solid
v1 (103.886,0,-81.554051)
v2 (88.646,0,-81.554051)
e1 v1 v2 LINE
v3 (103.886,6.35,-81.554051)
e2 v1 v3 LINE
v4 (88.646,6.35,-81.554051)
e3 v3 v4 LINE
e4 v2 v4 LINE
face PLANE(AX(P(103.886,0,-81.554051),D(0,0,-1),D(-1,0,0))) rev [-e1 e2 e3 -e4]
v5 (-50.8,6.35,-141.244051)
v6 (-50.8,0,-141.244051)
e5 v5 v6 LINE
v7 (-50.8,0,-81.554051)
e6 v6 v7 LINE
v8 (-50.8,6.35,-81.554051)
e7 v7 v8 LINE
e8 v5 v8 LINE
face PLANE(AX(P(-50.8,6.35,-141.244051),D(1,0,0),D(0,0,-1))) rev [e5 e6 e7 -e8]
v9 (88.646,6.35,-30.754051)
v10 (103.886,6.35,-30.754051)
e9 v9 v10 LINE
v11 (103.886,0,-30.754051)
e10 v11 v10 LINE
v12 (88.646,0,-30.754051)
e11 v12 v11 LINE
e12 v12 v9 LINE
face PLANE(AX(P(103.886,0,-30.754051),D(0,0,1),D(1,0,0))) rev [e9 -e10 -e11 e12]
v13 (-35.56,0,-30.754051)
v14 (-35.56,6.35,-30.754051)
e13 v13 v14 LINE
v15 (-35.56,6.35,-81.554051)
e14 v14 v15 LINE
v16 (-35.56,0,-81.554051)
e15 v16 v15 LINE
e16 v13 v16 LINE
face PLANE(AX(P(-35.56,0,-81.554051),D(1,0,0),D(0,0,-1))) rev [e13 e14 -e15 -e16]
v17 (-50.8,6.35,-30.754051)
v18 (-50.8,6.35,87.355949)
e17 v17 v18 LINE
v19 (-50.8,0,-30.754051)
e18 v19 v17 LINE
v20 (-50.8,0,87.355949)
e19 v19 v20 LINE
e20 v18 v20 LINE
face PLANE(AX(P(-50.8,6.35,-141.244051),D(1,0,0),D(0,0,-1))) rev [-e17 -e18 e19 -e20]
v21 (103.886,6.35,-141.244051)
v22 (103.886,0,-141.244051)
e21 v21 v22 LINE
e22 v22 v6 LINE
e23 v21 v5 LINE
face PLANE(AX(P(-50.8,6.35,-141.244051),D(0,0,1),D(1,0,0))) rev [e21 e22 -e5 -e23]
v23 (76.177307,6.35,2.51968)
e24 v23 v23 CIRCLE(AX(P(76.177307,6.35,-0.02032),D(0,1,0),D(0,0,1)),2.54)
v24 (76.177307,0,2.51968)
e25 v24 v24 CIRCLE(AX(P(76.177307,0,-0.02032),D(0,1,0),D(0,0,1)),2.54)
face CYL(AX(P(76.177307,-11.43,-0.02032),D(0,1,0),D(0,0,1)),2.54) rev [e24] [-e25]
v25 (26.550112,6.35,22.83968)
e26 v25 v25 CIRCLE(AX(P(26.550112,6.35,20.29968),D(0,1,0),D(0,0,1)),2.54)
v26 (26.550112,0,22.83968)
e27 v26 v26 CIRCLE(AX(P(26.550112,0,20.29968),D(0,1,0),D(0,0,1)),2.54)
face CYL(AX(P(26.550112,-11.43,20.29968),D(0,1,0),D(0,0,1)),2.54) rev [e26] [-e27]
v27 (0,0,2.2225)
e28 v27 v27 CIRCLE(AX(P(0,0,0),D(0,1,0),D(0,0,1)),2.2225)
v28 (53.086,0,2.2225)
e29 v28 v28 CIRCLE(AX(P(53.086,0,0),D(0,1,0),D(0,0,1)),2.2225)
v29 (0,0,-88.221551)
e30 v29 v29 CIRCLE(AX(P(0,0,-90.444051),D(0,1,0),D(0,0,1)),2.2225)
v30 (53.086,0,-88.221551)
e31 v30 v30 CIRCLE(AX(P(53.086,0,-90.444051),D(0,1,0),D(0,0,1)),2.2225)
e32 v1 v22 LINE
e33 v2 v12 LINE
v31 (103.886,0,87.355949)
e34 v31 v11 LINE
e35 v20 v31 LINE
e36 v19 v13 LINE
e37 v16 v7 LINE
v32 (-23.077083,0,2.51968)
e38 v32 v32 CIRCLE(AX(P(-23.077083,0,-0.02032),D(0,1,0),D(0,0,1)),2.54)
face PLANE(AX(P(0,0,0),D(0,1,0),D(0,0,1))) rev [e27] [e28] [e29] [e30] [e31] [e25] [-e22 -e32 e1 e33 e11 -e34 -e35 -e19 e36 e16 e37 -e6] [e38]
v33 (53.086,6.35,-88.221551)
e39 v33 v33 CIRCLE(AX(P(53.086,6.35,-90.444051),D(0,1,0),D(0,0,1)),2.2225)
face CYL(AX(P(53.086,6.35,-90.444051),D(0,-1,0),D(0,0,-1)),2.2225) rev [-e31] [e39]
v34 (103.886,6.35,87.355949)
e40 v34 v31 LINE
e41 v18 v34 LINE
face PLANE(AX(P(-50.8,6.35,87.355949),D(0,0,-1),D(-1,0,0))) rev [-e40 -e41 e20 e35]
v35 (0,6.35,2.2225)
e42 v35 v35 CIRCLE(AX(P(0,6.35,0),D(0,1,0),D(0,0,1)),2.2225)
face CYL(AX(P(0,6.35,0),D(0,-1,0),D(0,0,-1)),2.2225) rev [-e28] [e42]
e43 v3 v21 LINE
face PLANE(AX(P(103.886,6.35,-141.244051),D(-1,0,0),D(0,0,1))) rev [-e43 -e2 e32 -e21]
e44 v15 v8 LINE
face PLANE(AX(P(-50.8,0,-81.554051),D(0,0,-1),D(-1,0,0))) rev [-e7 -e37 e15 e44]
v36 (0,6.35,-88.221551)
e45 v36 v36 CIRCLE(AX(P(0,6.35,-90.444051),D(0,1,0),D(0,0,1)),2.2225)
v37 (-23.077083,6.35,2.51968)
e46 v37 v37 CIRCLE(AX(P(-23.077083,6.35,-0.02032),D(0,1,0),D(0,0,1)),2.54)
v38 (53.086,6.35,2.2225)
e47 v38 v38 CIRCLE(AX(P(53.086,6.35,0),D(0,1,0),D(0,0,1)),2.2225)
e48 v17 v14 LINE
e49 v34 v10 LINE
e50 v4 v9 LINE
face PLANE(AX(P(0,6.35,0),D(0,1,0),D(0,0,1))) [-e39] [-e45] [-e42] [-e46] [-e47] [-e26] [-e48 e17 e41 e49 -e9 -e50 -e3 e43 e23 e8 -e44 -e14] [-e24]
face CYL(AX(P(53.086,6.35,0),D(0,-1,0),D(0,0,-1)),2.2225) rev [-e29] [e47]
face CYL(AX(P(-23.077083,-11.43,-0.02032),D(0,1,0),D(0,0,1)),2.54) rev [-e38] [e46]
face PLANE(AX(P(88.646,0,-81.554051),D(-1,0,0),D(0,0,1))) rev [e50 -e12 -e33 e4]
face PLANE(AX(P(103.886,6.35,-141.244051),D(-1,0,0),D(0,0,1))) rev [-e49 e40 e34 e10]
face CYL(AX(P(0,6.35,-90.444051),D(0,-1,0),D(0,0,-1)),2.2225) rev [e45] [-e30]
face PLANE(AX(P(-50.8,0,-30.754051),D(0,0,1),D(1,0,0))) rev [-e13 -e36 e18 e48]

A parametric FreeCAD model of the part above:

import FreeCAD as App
import Part
import Sketcher

V = App.Vector
Q = App.Units.Quantity

doc = App.newDocument("Part")
body = doc.addObject("PartDesign::Body", "Body")

# Sketch on XZ plane
sketch1 = doc.addObject("Sketcher::SketchObject", "Sketch")
body.addObject(sketch1)
sketch1.AttachmentSupport = (doc.XZ_Plane, [""])
sketch1.MapMode = "FlatFace"
sketch1.addGeometry([
    Part.LineSegment(V(-51, -141, 0), V(-51, 87, 0)),
    Part.LineSegment(V(-51, 87, 0), V(104, 87, 0)),
    Part.LineSegment(V(104, 87, 0), V(104, -141, 0)),
    Part.LineSegment(V(104, -141, 0), V(-51, -141, 0)),
], False)
sketch1.addConstraint([
    Sketcher.Constraint("Coincident", 0, 2, 1, 1),
    Sketcher.Constraint("Coincident", 1, 2, 2, 1),
    Sketcher.Constraint("Coincident", 2, 2, 3, 1),
    Sketcher.Constraint("Coincident", 3, 2, 0, 1),
    Sketcher.Constraint("Vertical", 0),
    Sketcher.Constraint("Horizontal", 1),
    Sketcher.Constraint("Vertical", 2),
    Sketcher.Constraint("Horizontal", 3),
    Sketcher.Constraint("DistanceY", 0, 1, 0, 2, Q("9 in")),
    Sketcher.Constraint("DistanceX", 0, 2, -1, 1, Q("2 in")),
    Sketcher.Constraint("DistanceX", 1, 1, 1, 2, Q("6.09 in")),
    Sketcher.Constraint("DistanceY", -1, 1, 0, 2, 87.355949),
])
pad1 = doc.addObject("PartDesign::Pad", "Pad")
body.addObject(pad1)
pad1.Profile = sketch1
pad1.Length = Q("0.25 in")
pad1.Reversed = True

# Sketch on XZ plane
sketch2 = doc.addObject("Sketcher::SketchObject", "Sketch001")
body.addObject(sketch2)
sketch2.AttachmentSupport = (doc.XZ_Plane, [""])
sketch2.MapMode = "FlatFace"
sketch2.addGeometry([
    Part.Circle(V(0, -90.4, 0), V(0, 0, 1), 2.2),
    Part.Circle(V(53.1, -90.4, 0), V(0, 0, 1), 2.2),
    Part.Circle(V(0, 0, 0), V(0, 0, 1), 2.2),
    Part.Circle(V(53.1, 0, 0), V(0, 0, 1), 2.2),
], False)
sketch2.addConstraint([
    Sketcher.Constraint("Coincident", 2, 3, -1, 1),
    Sketcher.Constraint("Equal", 0, 1),
    Sketcher.Constraint("Equal", 1, 2),
    Sketcher.Constraint("Equal", 2, 3),
    Sketcher.Constraint("PointOnObject", 0, 3, -2),
    Sketcher.Constraint("PointOnObject", 3, 3, -1),
    Sketcher.Constraint("Horizontal", 0, 3, 1, 3),
    Sketcher.Constraint("Vertical", 1, 3, 3, 3),
    Sketcher.Constraint("Diameter", 0, Q("0.175 in")),
    Sketcher.Constraint("DistanceX", -1, 1, 1, 3, Q("2.09 in")),
    Sketcher.Constraint("DistanceY", 0, 3, -1, 1, 90.444051),
])
pocket1 = doc.addObject("PartDesign::Pocket", "Pocket")
body.addObject(pocket1)
pocket1.Profile = sketch2
pocket1.Length = Q("0.25 in")

# Sketch on XZ plane
sketch3 = doc.addObject("Sketcher::SketchObject", "Sketch002")
body.addObject(sketch3)
sketch3.AttachmentSupport = (doc.XZ_Plane, [""])
sketch3.MapMode = "FlatFace"
sketch3.AttachmentOffset = App.Placement(V(0, 0, -0.25 * 25.4), App.Rotation())
sketch3.addGeometry([
    Part.LineSegment(V(89, -82, 0), V(89, -31, 0)),  # 0
    Part.LineSegment(V(89, -31, 0), V(104, -31, 0)),  # 1
    Part.LineSegment(V(104, -31, 0), V(104, -82, 0)),  # 2
    Part.LineSegment(V(104, -82, 0), V(89, -82, 0)),  # 3
    Part.LineSegment(V(-51, -82, 0), V(-51, -31, 0)),  # 4
    Part.LineSegment(V(-51, -31, 0), V(-36, -31, 0)),  # 5
    Part.LineSegment(V(-36, -31, 0), V(-36, -82, 0)),  # 6
    Part.LineSegment(V(-36, -82, 0), V(-51, -82, 0)),  # 7
], False)
sketch3.addConstraint([
    Sketcher.Constraint("Coincident", 0, 2, 1, 1),
    Sketcher.Constraint("Coincident", 1, 2, 2, 1),
    Sketcher.Constraint("Coincident", 2, 2, 3, 1),
    Sketcher.Constraint("Coincident", 3, 2, 0, 1),
    Sketcher.Constraint("Coincident", 4, 2, 5, 1),
    Sketcher.Constraint("Coincident", 5, 2, 6, 1),
    Sketcher.Constraint("Coincident", 6, 2, 7, 1),
    Sketcher.Constraint("Coincident", 7, 2, 4, 1),
    Sketcher.Constraint("Vertical", 0),
    Sketcher.Constraint("Horizontal", 1),
    Sketcher.Constraint("Vertical", 2),
    Sketcher.Constraint("Horizontal", 3),
    Sketcher.Constraint("Vertical", 4),
    Sketcher.Constraint("Horizontal", 5),
    Sketcher.Constraint("Vertical", 6),
    Sketcher.Constraint("Horizontal", 7),
    Sketcher.Constraint("Horizontal", 1, 2, 4, 2),
    Sketcher.Constraint("Horizontal", 3, 2, 6, 2),
    Sketcher.Constraint("Equal", 3, 5),
    Sketcher.Constraint("DistanceY", 0, 1, 0, 2, Q("2 in")),
    Sketcher.Constraint("DistanceX", 1, 1, 1, 2, Q("0.6 in")),
    Sketcher.Constraint("DistanceX", 4, 2, -1, 1, Q("2 in")),
    Sketcher.Constraint("DistanceX", -1, 1, 0, 2, Q("3.49 in")),
    Sketcher.Constraint("DistanceY", 0, 2, -1, 1, 30.754051),
])
pocket2 = doc.addObject("PartDesign::Pocket", "Pocket001")
body.addObject(pocket2)
pocket2.Profile = sketch3
pocket2.Length = Q("0.25 in")
pocket2.Reversed = True

# Sketch on XZ plane
sketch4 = doc.addObject("Sketcher::SketchObject", "Sketch003")
body.addObject(sketch4)
sketch4.AttachmentSupport = (doc.XZ_Plane, [""])
sketch4.MapMode = "FlatFace"
sketch4.AttachmentOffset = App.Placement(V(0, 0, -0.25 * 25.4), App.Rotation())
sketch4.addGeometry([
    Part.Circle(V(26.6, 20.3, 0), V(0, 0, 1), 2.5),
    Part.Circle(V(-23.1, 0, 0), V(0, 0, 1), 2.5),
    Part.Circle(V(76.2, 0, 0), V(0, 0, 1), 2.5),
], False)
sketch4.addConstraint([
    Sketcher.Constraint("Equal", 0, 1),
    Sketcher.Constraint("Equal", 1, 2),
    Sketcher.Constraint("Horizontal", 1, 3, 2, 3),
    Sketcher.Constraint("Diameter", 0, Q("0.2 in")),
    Sketcher.Constraint("DistanceY", 1, 3, 0, 3, Q("0.8 in")),
    Sketcher.Constraint("DistanceY", -1, 1, 0, 3, Q("0.7992 in")),
    Sketcher.Constraint("DistanceX", -1, 1, 0, 3, 26.550112),
    Sketcher.Constraint("DistanceX", 1, 3, 2, 3, 99.25439),
    Sketcher.Constraint("DistanceX", 1, 3, -1, 1, 23.077083),
])
pocket3 = doc.addObject("PartDesign::Pocket", "Pocket002")
body.addObject(pocket3)
pocket3.Profile = sketch4
pocket3.Length = Q("0.7 in")
pocket3.Reversed = True

doc.recompute()
